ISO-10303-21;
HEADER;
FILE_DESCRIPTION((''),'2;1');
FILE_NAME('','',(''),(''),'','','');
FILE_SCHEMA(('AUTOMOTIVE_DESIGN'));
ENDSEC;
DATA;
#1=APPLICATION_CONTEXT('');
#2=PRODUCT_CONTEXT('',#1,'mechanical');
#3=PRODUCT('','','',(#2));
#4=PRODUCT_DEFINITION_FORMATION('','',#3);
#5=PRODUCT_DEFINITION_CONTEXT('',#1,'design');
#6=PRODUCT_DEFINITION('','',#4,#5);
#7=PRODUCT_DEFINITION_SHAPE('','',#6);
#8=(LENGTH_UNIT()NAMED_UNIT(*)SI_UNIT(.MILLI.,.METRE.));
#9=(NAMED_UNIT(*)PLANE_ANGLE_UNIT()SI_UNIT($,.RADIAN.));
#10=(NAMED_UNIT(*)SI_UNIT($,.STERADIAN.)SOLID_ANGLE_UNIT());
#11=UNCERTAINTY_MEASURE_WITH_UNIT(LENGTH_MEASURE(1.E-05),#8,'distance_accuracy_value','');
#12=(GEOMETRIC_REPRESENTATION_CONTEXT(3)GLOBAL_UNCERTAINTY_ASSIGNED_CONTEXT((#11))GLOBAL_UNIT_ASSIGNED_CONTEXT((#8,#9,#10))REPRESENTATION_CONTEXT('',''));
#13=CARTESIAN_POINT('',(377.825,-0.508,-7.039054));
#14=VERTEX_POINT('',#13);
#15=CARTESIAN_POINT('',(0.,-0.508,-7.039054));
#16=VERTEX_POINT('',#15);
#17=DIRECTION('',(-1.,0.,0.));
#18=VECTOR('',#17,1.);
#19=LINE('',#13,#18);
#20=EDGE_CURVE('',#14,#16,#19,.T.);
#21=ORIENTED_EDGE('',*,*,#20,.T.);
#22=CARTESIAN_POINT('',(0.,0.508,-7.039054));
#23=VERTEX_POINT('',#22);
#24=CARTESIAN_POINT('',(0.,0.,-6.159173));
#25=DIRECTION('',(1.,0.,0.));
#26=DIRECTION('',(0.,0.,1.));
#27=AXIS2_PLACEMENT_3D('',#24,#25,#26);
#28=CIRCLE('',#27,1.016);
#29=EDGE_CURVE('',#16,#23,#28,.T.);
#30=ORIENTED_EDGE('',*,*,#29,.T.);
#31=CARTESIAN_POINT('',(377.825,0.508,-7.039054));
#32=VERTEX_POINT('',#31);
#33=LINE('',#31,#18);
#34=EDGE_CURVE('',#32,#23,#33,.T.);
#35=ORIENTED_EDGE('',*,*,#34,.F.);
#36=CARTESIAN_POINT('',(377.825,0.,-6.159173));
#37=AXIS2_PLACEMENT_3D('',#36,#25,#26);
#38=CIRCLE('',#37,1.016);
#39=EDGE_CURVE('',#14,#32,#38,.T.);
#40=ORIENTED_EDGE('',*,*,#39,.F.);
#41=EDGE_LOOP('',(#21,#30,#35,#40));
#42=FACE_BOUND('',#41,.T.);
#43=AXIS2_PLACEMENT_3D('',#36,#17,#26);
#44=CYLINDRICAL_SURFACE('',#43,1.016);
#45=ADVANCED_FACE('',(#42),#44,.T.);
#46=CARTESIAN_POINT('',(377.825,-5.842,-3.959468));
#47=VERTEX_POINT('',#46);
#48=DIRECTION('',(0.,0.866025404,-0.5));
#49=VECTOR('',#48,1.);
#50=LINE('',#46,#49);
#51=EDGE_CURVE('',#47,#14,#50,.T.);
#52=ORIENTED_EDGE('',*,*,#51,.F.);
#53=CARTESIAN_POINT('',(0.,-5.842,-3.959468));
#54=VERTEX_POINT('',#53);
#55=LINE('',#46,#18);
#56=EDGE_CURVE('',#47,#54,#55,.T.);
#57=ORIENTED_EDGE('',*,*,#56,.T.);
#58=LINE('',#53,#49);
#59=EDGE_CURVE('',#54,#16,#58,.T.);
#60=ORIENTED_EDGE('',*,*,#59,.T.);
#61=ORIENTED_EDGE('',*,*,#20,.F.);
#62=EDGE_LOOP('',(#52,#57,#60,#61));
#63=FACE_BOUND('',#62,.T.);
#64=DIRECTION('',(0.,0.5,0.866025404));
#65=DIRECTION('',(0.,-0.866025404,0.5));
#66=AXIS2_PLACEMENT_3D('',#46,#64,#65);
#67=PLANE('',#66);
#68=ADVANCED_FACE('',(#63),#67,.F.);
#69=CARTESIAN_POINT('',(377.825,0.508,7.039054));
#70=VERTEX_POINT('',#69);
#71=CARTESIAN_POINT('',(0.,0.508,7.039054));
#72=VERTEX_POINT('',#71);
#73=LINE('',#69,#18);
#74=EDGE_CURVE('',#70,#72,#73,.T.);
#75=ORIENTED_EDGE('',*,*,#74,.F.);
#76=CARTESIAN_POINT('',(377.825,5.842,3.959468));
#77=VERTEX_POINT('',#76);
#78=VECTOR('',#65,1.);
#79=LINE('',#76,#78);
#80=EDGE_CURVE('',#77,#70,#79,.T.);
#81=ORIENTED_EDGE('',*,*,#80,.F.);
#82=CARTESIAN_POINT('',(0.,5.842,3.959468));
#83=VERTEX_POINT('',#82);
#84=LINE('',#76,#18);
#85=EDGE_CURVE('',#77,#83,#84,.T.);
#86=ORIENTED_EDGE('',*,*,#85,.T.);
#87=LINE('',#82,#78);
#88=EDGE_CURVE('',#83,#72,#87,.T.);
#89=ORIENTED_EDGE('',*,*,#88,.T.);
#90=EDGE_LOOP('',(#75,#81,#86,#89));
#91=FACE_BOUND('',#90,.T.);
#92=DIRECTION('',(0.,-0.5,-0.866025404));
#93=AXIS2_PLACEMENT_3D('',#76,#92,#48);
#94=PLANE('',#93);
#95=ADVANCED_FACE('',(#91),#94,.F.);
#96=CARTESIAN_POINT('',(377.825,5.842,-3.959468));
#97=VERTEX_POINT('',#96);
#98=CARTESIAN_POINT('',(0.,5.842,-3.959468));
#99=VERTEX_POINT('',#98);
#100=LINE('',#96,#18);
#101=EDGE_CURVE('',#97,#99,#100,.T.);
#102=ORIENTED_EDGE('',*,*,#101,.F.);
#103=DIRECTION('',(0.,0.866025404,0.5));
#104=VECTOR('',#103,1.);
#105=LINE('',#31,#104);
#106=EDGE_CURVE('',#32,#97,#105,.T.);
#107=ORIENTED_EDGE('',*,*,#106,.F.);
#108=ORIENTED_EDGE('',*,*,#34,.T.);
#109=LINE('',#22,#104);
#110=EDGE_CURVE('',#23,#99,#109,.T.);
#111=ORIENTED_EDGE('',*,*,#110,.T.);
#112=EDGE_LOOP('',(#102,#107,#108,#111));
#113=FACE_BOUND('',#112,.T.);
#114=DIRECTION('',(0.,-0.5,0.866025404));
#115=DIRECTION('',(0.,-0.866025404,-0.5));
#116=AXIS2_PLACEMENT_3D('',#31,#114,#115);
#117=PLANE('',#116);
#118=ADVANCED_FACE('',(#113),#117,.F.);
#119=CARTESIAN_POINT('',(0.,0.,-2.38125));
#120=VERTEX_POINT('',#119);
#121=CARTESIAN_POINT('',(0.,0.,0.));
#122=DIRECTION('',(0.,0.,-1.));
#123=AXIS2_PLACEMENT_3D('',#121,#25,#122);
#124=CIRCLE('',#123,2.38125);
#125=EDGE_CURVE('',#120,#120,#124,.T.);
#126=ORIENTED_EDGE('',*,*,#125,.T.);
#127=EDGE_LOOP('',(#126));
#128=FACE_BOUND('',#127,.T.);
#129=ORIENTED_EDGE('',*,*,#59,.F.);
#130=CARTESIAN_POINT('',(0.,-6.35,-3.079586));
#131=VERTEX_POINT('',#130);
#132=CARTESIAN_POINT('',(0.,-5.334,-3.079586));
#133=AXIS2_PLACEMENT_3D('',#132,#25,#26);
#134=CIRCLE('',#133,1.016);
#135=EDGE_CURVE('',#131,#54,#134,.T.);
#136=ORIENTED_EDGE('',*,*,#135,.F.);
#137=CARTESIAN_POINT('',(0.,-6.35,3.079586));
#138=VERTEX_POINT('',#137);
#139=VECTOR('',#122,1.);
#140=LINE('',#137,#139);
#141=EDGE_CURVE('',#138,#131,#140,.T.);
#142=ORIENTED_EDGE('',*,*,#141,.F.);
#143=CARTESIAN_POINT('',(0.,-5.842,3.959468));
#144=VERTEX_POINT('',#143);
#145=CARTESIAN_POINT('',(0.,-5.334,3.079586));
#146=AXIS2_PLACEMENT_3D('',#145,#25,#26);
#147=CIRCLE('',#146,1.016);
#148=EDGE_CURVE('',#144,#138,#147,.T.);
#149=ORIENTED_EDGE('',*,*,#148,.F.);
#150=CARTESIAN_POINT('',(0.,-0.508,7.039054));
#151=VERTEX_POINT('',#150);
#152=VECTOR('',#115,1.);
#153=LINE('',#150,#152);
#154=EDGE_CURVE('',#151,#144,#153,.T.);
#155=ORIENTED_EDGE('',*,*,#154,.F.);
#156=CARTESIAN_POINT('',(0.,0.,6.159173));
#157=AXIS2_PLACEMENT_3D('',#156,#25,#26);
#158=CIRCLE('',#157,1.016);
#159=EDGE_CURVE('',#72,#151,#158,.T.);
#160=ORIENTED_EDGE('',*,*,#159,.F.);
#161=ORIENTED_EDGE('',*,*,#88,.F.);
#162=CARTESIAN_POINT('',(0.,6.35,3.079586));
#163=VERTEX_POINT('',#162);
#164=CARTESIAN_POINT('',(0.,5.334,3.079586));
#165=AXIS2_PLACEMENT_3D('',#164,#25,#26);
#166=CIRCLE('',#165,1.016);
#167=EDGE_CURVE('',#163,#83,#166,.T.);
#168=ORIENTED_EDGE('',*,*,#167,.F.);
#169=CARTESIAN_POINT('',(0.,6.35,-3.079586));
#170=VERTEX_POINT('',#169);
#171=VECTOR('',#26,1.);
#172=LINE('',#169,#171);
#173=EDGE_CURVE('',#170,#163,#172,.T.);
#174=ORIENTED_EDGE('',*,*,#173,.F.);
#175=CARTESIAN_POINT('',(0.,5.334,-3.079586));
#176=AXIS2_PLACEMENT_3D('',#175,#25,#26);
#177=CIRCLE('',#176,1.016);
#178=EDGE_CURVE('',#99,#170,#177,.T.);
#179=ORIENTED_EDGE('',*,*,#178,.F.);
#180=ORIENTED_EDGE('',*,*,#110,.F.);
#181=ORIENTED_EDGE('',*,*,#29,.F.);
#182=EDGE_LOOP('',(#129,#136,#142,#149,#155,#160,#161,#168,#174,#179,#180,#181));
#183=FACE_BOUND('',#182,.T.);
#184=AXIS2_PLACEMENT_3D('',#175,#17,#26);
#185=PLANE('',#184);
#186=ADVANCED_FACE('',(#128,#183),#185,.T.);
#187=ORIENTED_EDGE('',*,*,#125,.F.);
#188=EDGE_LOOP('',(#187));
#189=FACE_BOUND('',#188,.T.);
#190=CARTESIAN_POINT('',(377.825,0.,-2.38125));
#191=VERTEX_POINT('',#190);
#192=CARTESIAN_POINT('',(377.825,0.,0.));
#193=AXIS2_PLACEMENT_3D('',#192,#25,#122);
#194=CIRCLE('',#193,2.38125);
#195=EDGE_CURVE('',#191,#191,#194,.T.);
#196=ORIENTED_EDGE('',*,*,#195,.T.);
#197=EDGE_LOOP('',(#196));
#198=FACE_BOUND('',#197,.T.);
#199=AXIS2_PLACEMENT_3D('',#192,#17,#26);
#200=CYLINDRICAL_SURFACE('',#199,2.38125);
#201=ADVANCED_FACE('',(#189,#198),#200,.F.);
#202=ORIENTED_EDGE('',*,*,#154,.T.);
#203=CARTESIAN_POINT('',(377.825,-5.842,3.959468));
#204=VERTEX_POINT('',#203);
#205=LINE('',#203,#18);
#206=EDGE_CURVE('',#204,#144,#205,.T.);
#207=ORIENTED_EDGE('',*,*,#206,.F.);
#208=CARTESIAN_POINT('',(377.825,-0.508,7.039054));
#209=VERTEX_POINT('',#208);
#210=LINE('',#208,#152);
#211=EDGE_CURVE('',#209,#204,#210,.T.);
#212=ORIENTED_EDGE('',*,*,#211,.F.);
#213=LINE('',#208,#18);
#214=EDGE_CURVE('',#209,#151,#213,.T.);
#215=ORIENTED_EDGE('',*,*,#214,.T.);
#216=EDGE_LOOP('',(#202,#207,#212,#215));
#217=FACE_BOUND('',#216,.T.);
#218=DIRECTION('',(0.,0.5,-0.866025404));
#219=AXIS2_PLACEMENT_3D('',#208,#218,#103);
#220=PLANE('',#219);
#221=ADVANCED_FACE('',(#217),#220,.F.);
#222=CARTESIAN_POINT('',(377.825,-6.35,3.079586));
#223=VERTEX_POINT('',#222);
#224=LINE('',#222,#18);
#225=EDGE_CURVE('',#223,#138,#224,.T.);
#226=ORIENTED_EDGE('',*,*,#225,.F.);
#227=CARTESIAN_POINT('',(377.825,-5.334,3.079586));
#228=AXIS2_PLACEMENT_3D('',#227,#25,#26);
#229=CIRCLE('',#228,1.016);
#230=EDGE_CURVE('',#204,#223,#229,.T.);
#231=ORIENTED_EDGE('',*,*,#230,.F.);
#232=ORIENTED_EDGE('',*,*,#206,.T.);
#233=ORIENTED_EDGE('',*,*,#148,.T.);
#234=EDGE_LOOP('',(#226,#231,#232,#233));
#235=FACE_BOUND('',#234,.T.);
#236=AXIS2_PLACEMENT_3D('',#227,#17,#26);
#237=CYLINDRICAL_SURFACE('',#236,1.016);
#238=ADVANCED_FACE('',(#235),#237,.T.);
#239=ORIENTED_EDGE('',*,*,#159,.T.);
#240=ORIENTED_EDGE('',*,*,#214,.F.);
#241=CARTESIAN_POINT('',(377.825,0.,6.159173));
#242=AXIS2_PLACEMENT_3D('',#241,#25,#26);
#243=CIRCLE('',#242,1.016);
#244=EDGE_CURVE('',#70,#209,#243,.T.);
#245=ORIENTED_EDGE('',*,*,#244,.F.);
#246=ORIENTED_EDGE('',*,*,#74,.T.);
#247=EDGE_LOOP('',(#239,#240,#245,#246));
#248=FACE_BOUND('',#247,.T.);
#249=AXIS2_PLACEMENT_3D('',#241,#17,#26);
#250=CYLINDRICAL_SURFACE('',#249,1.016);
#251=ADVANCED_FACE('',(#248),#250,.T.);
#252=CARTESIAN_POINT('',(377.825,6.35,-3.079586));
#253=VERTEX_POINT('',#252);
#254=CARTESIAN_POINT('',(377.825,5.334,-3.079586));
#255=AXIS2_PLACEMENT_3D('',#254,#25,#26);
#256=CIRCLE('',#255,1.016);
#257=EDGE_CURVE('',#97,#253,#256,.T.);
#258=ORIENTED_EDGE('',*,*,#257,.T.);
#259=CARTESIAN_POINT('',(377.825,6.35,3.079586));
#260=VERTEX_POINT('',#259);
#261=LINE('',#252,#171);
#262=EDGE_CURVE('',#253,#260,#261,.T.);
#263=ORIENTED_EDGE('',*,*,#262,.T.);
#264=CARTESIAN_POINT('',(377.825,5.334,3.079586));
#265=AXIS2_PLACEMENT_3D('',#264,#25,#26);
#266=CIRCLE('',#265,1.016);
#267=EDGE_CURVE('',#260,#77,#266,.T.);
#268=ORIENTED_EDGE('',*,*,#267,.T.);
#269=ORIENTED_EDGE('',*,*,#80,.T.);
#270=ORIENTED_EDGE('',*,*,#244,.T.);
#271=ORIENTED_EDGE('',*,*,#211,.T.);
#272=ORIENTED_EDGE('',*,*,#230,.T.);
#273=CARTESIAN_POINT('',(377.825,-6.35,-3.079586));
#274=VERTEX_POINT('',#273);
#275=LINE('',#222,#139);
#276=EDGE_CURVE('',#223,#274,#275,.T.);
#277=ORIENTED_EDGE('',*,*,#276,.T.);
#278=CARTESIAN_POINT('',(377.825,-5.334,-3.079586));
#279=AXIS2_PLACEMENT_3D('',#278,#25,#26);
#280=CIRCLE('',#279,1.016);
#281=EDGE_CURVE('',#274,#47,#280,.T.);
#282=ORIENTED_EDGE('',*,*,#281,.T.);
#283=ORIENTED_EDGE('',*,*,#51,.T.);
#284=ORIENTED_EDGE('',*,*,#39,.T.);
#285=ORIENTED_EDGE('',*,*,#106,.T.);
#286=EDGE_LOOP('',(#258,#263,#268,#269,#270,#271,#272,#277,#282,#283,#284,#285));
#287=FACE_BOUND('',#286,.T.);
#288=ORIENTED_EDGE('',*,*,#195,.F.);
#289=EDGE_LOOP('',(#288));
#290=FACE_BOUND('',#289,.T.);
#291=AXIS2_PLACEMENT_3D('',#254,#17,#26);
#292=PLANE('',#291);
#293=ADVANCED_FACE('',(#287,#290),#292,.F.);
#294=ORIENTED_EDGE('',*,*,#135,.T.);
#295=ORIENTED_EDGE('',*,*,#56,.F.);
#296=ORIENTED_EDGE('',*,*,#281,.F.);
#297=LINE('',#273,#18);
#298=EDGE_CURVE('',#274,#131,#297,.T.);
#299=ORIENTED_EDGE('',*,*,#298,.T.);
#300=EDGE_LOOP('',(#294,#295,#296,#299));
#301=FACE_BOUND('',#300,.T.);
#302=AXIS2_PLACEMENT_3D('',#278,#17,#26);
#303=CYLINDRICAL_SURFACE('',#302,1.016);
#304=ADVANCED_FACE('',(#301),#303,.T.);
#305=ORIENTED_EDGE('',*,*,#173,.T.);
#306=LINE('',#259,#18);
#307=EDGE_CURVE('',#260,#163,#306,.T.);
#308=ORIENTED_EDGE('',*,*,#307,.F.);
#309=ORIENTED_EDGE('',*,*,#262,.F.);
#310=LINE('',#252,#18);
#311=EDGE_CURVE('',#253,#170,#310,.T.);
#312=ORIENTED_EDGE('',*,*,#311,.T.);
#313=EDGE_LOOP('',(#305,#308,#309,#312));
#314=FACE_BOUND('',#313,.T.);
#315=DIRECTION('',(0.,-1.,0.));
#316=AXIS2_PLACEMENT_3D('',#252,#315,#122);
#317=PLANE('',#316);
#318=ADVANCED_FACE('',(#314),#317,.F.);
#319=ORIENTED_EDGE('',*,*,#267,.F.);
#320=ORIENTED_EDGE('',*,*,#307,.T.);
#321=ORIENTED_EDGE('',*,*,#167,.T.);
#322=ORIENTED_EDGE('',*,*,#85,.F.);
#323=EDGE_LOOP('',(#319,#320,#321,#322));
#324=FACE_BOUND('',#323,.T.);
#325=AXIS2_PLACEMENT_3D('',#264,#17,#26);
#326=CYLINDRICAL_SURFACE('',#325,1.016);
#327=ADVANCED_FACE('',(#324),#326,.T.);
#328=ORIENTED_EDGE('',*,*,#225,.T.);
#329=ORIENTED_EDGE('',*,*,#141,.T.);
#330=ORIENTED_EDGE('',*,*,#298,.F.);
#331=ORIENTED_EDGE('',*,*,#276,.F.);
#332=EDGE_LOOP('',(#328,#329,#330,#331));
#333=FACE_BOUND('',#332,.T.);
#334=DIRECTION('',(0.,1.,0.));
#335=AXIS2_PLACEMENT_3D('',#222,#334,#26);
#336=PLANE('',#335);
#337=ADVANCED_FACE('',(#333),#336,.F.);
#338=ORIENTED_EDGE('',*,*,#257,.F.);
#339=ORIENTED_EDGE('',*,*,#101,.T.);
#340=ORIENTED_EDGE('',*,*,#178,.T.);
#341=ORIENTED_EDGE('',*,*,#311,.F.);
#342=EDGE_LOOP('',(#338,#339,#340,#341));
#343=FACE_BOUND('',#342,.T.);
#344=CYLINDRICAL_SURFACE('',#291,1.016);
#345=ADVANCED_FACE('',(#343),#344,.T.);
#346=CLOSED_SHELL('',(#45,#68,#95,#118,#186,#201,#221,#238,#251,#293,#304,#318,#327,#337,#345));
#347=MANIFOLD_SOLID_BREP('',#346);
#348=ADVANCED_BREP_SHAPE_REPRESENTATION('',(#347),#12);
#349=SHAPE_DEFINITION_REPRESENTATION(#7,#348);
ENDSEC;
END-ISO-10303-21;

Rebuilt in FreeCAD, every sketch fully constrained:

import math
import FreeCAD as App
import Part
import Sketcher

V = App.Vector
Q = App.Units.Quantity

doc = App.newDocument("Part")
body = doc.addObject("PartDesign::Body", "Body")

# Sketch on YZ plane
sketch1 = body.newObject("Sketcher::SketchObject", "Sketch")
sketch1.AttachmentSupport = (doc.getObject("YZ_Plane"), [""])
sketch1.MapMode = "FlatFace"
sketch1.addGeometry([
    Part.LineSegment(V(0.5, -7, 0), V(5.8, -4, 0)),  # 0
    Part.ArcOfCircle(Part.Circle(V(5.3, -3.1, 0), V(0, 0, 1), 1), math.radians(-60), math.radians(0)),  # 1
    Part.LineSegment(V(6.3, -3.1, 0), V(6.3, 3.1, 0)),  # 2
    Part.ArcOfCircle(Part.Circle(V(5.3, 3.1, 0), V(0, 0, 1), 1), math.radians(0), math.radians(60)),  # 3
    Part.LineSegment(V(5.8, 4, 0), V(0.5, 7, 0)),  # 4
    Part.ArcOfCircle(Part.Circle(V(0, 6.2, 0), V(0, 0, 1), 1), math.radians(60), math.radians(120)),  # 5
    Part.LineSegment(V(-0.5, 7, 0), V(-5.8, 4, 0)),  # 6
    Part.ArcOfCircle(Part.Circle(V(-5.3, 3.1, 0), V(0, 0, 1), 1), math.radians(120), math.radians(180)),  # 7
    Part.LineSegment(V(-6.3, 3.1, 0), V(-6.3, -3.1, 0)),  # 8
    Part.ArcOfCircle(Part.Circle(V(-5.3, -3.1, 0), V(0, 0, 1), 1), math.radians(-180), math.radians(-120)),  # 9
    Part.LineSegment(V(-5.8, -4, 0), V(-0.5, -7, 0)),  # 10
    Part.ArcOfCircle(Part.Circle(V(0, -6.2, 0), V(0, 0, 1), 1), math.radians(-120), math.radians(-60)),  # 11
    Part.Circle(V(0, 0, 0), V(0, 0, 1), 2.4),  # 12
], False)
sketch1.addConstraint([
    Sketcher.Constraint("Tangent", 0, 2, 1, 1),
    Sketcher.Constraint("Tangent", 1, 2, 2, 1),
    Sketcher.Constraint("Tangent", 2, 2, 3, 1),
    Sketcher.Constraint("Tangent", 3, 2, 4, 1),
    Sketcher.Constraint("Tangent", 4, 2, 5, 1),
    Sketcher.Constraint("Tangent", 5, 2, 6, 1),
    Sketcher.Constraint("Tangent", 6, 2, 7, 1),
    Sketcher.Constraint("Tangent", 7, 2, 8, 1),
    Sketcher.Constraint("Tangent", 8, 2, 9, 1),
    Sketcher.Constraint("Tangent", 9, 2, 10, 1),
    Sketcher.Constraint("Tangent", 10, 2, 11, 1),
    Sketcher.Constraint("Tangent", 11, 2, 0, 1),
    Sketcher.Constraint("Vertical", 2),
    Sketcher.Constraint("Vertical", 8),
    Sketcher.Constraint("Coincident", 12, 3, -1, 1),
    Sketcher.Constraint("Equal", 1, 3),
    Sketcher.Constraint("Equal", 3, 5),
    Sketcher.Constraint("Equal", 5, 7),
    Sketcher.Constraint("Equal", 7, 9),
    Sketcher.Constraint("Equal", 9, 11),
    Sketcher.Constraint("Symmetric", 1, 3, 7, 3, -1, 1),
    Sketcher.Constraint("Symmetric", 5, 3, 11, 3, -1, 1),
    Sketcher.Constraint("Symmetric", 4, 2, 5, 2, -2),
    Sketcher.Constraint("Parallel", 4, 10),
    Sketcher.Constraint("Radius", 1, Q("0.04 in")),
    Sketcher.Constraint("Diameter", 12, Q("0.1875 in")),
    Sketcher.Constraint("Angle", 0, Q("30 deg")),
    Sketcher.Constraint("DistanceX", -1, 1, 1, 3, Q("0.21 in")),
    Sketcher.Constraint("DistanceY", 2, 1, 2, 2, Q("6.159173 mm")),
])
pad1 = body.newObject("PartDesign::Pad", "Pad")
pad1.Profile = sketch1
pad1.Length = Q("14.875 in")

doc.recompute()
